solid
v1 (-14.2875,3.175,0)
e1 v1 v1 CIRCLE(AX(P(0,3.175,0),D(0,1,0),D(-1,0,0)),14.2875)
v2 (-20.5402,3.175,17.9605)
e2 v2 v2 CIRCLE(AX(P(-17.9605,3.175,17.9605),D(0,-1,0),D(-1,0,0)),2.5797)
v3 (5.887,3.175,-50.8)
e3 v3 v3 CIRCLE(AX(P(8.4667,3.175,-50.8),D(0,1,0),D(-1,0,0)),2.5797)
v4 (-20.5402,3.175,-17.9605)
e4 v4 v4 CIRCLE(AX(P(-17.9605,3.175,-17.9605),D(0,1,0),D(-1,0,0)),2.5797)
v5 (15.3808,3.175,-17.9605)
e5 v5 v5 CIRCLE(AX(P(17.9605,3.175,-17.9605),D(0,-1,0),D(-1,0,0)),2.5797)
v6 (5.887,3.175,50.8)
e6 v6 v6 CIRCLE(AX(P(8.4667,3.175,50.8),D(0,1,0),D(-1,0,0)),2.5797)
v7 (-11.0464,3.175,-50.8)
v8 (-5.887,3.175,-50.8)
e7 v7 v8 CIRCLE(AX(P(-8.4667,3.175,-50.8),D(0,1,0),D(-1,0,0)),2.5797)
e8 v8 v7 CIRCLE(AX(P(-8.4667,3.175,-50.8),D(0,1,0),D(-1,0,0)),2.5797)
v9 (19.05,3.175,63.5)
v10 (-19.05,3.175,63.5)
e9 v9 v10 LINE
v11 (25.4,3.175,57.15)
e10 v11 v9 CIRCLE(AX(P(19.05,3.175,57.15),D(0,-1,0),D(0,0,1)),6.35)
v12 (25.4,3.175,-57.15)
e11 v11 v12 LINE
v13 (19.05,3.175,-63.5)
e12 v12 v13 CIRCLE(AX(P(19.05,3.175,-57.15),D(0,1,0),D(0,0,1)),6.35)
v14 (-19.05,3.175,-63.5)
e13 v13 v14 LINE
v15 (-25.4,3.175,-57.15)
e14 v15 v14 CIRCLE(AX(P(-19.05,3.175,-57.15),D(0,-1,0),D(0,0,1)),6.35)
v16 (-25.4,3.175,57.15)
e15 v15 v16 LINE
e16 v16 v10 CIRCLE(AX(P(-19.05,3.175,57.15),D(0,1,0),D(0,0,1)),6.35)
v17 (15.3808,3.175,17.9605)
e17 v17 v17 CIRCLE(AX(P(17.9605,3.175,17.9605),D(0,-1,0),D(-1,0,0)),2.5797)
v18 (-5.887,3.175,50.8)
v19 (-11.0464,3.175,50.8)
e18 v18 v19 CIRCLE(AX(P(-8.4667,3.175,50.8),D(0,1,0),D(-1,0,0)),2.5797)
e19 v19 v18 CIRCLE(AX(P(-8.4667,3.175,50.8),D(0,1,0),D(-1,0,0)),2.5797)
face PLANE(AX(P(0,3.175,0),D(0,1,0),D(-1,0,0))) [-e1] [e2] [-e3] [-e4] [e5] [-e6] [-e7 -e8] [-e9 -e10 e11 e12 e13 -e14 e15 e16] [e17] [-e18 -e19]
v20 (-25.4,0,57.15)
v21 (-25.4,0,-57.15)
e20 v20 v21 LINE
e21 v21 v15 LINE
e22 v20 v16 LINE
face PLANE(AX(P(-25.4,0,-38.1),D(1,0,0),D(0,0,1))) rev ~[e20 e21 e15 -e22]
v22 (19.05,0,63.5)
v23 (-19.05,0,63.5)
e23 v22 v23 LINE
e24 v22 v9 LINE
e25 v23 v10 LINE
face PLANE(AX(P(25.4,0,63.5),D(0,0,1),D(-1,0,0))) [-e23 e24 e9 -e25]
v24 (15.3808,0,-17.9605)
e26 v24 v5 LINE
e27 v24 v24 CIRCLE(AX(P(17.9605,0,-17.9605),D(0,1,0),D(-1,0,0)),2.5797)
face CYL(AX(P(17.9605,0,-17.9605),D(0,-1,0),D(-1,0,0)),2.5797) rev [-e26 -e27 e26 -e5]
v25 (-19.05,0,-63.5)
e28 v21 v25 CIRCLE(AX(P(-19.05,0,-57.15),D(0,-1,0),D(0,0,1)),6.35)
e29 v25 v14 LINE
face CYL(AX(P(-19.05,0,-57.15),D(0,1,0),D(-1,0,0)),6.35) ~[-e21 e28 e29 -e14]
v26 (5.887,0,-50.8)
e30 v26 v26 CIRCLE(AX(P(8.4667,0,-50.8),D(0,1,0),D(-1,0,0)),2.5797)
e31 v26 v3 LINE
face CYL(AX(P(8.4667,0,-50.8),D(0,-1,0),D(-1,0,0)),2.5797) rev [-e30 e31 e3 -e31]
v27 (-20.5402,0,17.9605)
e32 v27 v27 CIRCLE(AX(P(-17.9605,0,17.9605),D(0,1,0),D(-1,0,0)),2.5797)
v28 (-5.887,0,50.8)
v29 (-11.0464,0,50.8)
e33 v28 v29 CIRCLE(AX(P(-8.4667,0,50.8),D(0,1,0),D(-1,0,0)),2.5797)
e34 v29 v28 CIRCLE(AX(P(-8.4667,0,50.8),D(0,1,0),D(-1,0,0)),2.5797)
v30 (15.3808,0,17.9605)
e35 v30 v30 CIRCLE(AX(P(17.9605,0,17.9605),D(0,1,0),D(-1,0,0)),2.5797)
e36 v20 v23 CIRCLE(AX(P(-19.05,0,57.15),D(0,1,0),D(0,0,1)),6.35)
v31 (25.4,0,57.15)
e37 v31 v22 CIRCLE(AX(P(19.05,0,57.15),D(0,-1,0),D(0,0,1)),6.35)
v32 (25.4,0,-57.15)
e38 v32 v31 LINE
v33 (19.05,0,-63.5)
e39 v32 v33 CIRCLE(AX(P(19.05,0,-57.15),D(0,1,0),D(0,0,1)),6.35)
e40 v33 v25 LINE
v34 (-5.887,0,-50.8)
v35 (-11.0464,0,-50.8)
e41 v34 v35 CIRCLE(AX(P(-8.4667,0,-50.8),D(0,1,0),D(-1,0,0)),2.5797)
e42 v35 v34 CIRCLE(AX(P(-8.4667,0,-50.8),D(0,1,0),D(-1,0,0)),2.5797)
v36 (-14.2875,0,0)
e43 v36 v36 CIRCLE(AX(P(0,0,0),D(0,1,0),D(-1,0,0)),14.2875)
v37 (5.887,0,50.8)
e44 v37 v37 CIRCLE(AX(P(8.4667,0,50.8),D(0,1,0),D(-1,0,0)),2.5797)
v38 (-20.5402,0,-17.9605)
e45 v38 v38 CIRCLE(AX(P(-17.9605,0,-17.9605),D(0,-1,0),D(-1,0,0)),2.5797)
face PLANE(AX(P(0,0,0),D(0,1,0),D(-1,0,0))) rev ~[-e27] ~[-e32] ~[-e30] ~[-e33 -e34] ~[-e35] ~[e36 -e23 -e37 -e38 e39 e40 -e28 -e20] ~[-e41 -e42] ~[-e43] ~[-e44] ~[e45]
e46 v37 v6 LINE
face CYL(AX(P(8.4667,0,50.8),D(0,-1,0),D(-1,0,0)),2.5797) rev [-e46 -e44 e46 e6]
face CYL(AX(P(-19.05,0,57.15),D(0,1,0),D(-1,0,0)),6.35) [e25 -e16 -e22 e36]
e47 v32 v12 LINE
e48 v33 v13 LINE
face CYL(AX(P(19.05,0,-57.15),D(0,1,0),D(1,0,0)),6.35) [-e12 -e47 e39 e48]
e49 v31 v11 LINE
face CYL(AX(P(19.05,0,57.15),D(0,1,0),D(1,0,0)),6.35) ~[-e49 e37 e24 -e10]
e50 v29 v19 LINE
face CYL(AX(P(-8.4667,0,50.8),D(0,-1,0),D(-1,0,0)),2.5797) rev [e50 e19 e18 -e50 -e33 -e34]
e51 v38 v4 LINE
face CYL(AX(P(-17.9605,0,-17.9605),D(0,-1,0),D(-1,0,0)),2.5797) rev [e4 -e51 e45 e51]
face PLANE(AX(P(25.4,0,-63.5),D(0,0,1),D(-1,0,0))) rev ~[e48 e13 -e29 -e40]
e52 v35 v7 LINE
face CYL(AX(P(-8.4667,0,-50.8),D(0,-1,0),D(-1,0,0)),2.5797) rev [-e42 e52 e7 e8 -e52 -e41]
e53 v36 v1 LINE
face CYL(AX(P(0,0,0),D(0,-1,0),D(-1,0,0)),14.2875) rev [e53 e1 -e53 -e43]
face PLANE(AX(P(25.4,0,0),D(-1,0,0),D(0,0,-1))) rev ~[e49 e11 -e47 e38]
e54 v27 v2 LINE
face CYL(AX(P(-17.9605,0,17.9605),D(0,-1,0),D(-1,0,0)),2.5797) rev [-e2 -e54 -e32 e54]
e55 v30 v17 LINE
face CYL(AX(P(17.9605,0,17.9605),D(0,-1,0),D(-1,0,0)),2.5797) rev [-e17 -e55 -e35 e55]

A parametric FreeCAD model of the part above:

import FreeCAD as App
import Part
import Sketcher

V = App.Vector
Q = App.Units.Quantity


def edges_at(feature, points):
    """Names of the edges that pass closest to the given points."""
    edges = feature.Shape.Edges
    near = lambda p: min(range(len(edges)), key=lambda i: edges[i].distToShape(Part.Vertex(*p))[0])
    return sorted({f"Edge{near(p) + 1}" for p in points})

doc = App.newDocument("Part")
body = doc.addObject("PartDesign::Body", "Body")

sketch1 = body.newObject("Sketcher::SketchObject", "Sketch")
sketch1.AttachmentSupport = (doc.getObject("XZ_Plane"), [""])
sketch1.MapMode = "FlatFace"
sketch1.addGeometry([
    Part.LineSegment(V(-25.4, 63.5, 0), V(25.4, 63.5, 0)),
    Part.LineSegment(V(25.4, 63.5, 0), V(25.4, -63.5, 0)),
    Part.LineSegment(V(25.4, -63.5, 0), V(-25.4, -63.5, 0)),
    Part.LineSegment(V(-25.4, -63.5, 0), V(-25.4, 63.5, 0)),
    Part.Circle(V(-18, -18, 0), V(0, 0, 1), 2.6),
    Part.Circle(V(-18, 18, 0), V(0, 0, 1), 2.6),
    Part.Circle(V(18, -18, 0), V(0, 0, 1), 2.6),
    Part.Circle(V(0, 0, 0), V(0, 0, 1), 14.3),
    Part.Circle(V(18, 18, 0), V(0, 0, 1), 2.6),
    Part.Circle(V(8.5, -50.8, 0), V(0, 0, 1), 2.6),
    Part.Circle(V(-8.5, -50.8, 0), V(0, 0, 1), 2.6),
    Part.Circle(V(8.5, 50.8, 0), V(0, 0, 1), 2.6),
    Part.Circle(V(-8.5, 50.8, 0), V(0, 0, 1), 2.6),
], False)
sketch1.addConstraint([
    Sketcher.Constraint("Coincident", 0, 2, 1, 1),
    Sketcher.Constraint("Coincident", 1, 2, 2, 1),
    Sketcher.Constraint("Coincident", 2, 2, 3, 1),
    Sketcher.Constraint("Coincident", 3, 2, 0, 1),
    Sketcher.Constraint("Horizontal", 0),
    Sketcher.Constraint("Vertical", 1),
    Sketcher.Constraint("Horizontal", 2),
    Sketcher.Constraint("Vertical", 3),
    Sketcher.Constraint("Coincident", 7, 3, -1, 1),
    Sketcher.Constraint("Equal", 4, 5),
    Sketcher.Constraint("Equal", 5, 6),
    Sketcher.Constraint("Equal", 6, 8),
    Sketcher.Constraint("Equal", 8, 9),
    Sketcher.Constraint("Equal", 9, 10),
    Sketcher.Constraint("Equal", 10, 11),
    Sketcher.Constraint("Equal", 11, 12),
    Sketcher.Constraint("Symmetric", 5, 3, 6, 3, -1, 1),
    Sketcher.Constraint("Symmetric", 4, 3, 8, 3, -1, 1),
    Sketcher.Constraint("Symmetric", 10, 3, 11, 3, -1, 1),
    Sketcher.Constraint("Symmetric", 9, 3, 12, 3, -1, 1),
    Sketcher.Constraint("Symmetric", 0, 2, 2, 2, -1, 1),
    Sketcher.Constraint("Symmetric", 4, 3, 6, 3, -2),
    Sketcher.Constraint("Symmetric", 9, 3, 10, 3, -2),
    Sketcher.Constraint("DistanceX", 0, 1, 0, 2, Q("2 in")),
    Sketcher.Constraint("Diameter", 4, Q("0.203126 in")),
    Sketcher.Constraint("Diameter", 7, Q("1.125 in")),
    Sketcher.Constraint("DistanceY", 9, 3, -1, 1, Q("2 in")),
    Sketcher.Constraint("DistanceY", 11, 3, 0, 2, Q("0.5 in")),
    Sketcher.Constraint("DistanceX", 10, 3, 9, 3, 16.9334),
    Sketcher.Constraint("DistanceX", 4, 3, -1, 1, Q("0.7071 in")),
    Sketcher.Constraint("DistanceY", 4, 3, -1, 1, Q("0.7071 in")),
])
pad1 = body.newObject("PartDesign::Pad", "Pad")
pad1.Profile = sketch1
pad1.Length = Q("0.125 in")
pad1.Reversed = True
doc.recompute()

fillet = body.newObject("PartDesign::Fillet", "Fillet")
fillet.Base = (pad1, edges_at(pad1, [
    (-25.4, 1.587, 63.5),
    (25.4, 1.587, 63.5),
    (25.4, 1.587, -63.5),
    (-25.4, 1.587, -63.5),
]))
fillet.Radius = Q("0.25 in")

doc.recompute()
